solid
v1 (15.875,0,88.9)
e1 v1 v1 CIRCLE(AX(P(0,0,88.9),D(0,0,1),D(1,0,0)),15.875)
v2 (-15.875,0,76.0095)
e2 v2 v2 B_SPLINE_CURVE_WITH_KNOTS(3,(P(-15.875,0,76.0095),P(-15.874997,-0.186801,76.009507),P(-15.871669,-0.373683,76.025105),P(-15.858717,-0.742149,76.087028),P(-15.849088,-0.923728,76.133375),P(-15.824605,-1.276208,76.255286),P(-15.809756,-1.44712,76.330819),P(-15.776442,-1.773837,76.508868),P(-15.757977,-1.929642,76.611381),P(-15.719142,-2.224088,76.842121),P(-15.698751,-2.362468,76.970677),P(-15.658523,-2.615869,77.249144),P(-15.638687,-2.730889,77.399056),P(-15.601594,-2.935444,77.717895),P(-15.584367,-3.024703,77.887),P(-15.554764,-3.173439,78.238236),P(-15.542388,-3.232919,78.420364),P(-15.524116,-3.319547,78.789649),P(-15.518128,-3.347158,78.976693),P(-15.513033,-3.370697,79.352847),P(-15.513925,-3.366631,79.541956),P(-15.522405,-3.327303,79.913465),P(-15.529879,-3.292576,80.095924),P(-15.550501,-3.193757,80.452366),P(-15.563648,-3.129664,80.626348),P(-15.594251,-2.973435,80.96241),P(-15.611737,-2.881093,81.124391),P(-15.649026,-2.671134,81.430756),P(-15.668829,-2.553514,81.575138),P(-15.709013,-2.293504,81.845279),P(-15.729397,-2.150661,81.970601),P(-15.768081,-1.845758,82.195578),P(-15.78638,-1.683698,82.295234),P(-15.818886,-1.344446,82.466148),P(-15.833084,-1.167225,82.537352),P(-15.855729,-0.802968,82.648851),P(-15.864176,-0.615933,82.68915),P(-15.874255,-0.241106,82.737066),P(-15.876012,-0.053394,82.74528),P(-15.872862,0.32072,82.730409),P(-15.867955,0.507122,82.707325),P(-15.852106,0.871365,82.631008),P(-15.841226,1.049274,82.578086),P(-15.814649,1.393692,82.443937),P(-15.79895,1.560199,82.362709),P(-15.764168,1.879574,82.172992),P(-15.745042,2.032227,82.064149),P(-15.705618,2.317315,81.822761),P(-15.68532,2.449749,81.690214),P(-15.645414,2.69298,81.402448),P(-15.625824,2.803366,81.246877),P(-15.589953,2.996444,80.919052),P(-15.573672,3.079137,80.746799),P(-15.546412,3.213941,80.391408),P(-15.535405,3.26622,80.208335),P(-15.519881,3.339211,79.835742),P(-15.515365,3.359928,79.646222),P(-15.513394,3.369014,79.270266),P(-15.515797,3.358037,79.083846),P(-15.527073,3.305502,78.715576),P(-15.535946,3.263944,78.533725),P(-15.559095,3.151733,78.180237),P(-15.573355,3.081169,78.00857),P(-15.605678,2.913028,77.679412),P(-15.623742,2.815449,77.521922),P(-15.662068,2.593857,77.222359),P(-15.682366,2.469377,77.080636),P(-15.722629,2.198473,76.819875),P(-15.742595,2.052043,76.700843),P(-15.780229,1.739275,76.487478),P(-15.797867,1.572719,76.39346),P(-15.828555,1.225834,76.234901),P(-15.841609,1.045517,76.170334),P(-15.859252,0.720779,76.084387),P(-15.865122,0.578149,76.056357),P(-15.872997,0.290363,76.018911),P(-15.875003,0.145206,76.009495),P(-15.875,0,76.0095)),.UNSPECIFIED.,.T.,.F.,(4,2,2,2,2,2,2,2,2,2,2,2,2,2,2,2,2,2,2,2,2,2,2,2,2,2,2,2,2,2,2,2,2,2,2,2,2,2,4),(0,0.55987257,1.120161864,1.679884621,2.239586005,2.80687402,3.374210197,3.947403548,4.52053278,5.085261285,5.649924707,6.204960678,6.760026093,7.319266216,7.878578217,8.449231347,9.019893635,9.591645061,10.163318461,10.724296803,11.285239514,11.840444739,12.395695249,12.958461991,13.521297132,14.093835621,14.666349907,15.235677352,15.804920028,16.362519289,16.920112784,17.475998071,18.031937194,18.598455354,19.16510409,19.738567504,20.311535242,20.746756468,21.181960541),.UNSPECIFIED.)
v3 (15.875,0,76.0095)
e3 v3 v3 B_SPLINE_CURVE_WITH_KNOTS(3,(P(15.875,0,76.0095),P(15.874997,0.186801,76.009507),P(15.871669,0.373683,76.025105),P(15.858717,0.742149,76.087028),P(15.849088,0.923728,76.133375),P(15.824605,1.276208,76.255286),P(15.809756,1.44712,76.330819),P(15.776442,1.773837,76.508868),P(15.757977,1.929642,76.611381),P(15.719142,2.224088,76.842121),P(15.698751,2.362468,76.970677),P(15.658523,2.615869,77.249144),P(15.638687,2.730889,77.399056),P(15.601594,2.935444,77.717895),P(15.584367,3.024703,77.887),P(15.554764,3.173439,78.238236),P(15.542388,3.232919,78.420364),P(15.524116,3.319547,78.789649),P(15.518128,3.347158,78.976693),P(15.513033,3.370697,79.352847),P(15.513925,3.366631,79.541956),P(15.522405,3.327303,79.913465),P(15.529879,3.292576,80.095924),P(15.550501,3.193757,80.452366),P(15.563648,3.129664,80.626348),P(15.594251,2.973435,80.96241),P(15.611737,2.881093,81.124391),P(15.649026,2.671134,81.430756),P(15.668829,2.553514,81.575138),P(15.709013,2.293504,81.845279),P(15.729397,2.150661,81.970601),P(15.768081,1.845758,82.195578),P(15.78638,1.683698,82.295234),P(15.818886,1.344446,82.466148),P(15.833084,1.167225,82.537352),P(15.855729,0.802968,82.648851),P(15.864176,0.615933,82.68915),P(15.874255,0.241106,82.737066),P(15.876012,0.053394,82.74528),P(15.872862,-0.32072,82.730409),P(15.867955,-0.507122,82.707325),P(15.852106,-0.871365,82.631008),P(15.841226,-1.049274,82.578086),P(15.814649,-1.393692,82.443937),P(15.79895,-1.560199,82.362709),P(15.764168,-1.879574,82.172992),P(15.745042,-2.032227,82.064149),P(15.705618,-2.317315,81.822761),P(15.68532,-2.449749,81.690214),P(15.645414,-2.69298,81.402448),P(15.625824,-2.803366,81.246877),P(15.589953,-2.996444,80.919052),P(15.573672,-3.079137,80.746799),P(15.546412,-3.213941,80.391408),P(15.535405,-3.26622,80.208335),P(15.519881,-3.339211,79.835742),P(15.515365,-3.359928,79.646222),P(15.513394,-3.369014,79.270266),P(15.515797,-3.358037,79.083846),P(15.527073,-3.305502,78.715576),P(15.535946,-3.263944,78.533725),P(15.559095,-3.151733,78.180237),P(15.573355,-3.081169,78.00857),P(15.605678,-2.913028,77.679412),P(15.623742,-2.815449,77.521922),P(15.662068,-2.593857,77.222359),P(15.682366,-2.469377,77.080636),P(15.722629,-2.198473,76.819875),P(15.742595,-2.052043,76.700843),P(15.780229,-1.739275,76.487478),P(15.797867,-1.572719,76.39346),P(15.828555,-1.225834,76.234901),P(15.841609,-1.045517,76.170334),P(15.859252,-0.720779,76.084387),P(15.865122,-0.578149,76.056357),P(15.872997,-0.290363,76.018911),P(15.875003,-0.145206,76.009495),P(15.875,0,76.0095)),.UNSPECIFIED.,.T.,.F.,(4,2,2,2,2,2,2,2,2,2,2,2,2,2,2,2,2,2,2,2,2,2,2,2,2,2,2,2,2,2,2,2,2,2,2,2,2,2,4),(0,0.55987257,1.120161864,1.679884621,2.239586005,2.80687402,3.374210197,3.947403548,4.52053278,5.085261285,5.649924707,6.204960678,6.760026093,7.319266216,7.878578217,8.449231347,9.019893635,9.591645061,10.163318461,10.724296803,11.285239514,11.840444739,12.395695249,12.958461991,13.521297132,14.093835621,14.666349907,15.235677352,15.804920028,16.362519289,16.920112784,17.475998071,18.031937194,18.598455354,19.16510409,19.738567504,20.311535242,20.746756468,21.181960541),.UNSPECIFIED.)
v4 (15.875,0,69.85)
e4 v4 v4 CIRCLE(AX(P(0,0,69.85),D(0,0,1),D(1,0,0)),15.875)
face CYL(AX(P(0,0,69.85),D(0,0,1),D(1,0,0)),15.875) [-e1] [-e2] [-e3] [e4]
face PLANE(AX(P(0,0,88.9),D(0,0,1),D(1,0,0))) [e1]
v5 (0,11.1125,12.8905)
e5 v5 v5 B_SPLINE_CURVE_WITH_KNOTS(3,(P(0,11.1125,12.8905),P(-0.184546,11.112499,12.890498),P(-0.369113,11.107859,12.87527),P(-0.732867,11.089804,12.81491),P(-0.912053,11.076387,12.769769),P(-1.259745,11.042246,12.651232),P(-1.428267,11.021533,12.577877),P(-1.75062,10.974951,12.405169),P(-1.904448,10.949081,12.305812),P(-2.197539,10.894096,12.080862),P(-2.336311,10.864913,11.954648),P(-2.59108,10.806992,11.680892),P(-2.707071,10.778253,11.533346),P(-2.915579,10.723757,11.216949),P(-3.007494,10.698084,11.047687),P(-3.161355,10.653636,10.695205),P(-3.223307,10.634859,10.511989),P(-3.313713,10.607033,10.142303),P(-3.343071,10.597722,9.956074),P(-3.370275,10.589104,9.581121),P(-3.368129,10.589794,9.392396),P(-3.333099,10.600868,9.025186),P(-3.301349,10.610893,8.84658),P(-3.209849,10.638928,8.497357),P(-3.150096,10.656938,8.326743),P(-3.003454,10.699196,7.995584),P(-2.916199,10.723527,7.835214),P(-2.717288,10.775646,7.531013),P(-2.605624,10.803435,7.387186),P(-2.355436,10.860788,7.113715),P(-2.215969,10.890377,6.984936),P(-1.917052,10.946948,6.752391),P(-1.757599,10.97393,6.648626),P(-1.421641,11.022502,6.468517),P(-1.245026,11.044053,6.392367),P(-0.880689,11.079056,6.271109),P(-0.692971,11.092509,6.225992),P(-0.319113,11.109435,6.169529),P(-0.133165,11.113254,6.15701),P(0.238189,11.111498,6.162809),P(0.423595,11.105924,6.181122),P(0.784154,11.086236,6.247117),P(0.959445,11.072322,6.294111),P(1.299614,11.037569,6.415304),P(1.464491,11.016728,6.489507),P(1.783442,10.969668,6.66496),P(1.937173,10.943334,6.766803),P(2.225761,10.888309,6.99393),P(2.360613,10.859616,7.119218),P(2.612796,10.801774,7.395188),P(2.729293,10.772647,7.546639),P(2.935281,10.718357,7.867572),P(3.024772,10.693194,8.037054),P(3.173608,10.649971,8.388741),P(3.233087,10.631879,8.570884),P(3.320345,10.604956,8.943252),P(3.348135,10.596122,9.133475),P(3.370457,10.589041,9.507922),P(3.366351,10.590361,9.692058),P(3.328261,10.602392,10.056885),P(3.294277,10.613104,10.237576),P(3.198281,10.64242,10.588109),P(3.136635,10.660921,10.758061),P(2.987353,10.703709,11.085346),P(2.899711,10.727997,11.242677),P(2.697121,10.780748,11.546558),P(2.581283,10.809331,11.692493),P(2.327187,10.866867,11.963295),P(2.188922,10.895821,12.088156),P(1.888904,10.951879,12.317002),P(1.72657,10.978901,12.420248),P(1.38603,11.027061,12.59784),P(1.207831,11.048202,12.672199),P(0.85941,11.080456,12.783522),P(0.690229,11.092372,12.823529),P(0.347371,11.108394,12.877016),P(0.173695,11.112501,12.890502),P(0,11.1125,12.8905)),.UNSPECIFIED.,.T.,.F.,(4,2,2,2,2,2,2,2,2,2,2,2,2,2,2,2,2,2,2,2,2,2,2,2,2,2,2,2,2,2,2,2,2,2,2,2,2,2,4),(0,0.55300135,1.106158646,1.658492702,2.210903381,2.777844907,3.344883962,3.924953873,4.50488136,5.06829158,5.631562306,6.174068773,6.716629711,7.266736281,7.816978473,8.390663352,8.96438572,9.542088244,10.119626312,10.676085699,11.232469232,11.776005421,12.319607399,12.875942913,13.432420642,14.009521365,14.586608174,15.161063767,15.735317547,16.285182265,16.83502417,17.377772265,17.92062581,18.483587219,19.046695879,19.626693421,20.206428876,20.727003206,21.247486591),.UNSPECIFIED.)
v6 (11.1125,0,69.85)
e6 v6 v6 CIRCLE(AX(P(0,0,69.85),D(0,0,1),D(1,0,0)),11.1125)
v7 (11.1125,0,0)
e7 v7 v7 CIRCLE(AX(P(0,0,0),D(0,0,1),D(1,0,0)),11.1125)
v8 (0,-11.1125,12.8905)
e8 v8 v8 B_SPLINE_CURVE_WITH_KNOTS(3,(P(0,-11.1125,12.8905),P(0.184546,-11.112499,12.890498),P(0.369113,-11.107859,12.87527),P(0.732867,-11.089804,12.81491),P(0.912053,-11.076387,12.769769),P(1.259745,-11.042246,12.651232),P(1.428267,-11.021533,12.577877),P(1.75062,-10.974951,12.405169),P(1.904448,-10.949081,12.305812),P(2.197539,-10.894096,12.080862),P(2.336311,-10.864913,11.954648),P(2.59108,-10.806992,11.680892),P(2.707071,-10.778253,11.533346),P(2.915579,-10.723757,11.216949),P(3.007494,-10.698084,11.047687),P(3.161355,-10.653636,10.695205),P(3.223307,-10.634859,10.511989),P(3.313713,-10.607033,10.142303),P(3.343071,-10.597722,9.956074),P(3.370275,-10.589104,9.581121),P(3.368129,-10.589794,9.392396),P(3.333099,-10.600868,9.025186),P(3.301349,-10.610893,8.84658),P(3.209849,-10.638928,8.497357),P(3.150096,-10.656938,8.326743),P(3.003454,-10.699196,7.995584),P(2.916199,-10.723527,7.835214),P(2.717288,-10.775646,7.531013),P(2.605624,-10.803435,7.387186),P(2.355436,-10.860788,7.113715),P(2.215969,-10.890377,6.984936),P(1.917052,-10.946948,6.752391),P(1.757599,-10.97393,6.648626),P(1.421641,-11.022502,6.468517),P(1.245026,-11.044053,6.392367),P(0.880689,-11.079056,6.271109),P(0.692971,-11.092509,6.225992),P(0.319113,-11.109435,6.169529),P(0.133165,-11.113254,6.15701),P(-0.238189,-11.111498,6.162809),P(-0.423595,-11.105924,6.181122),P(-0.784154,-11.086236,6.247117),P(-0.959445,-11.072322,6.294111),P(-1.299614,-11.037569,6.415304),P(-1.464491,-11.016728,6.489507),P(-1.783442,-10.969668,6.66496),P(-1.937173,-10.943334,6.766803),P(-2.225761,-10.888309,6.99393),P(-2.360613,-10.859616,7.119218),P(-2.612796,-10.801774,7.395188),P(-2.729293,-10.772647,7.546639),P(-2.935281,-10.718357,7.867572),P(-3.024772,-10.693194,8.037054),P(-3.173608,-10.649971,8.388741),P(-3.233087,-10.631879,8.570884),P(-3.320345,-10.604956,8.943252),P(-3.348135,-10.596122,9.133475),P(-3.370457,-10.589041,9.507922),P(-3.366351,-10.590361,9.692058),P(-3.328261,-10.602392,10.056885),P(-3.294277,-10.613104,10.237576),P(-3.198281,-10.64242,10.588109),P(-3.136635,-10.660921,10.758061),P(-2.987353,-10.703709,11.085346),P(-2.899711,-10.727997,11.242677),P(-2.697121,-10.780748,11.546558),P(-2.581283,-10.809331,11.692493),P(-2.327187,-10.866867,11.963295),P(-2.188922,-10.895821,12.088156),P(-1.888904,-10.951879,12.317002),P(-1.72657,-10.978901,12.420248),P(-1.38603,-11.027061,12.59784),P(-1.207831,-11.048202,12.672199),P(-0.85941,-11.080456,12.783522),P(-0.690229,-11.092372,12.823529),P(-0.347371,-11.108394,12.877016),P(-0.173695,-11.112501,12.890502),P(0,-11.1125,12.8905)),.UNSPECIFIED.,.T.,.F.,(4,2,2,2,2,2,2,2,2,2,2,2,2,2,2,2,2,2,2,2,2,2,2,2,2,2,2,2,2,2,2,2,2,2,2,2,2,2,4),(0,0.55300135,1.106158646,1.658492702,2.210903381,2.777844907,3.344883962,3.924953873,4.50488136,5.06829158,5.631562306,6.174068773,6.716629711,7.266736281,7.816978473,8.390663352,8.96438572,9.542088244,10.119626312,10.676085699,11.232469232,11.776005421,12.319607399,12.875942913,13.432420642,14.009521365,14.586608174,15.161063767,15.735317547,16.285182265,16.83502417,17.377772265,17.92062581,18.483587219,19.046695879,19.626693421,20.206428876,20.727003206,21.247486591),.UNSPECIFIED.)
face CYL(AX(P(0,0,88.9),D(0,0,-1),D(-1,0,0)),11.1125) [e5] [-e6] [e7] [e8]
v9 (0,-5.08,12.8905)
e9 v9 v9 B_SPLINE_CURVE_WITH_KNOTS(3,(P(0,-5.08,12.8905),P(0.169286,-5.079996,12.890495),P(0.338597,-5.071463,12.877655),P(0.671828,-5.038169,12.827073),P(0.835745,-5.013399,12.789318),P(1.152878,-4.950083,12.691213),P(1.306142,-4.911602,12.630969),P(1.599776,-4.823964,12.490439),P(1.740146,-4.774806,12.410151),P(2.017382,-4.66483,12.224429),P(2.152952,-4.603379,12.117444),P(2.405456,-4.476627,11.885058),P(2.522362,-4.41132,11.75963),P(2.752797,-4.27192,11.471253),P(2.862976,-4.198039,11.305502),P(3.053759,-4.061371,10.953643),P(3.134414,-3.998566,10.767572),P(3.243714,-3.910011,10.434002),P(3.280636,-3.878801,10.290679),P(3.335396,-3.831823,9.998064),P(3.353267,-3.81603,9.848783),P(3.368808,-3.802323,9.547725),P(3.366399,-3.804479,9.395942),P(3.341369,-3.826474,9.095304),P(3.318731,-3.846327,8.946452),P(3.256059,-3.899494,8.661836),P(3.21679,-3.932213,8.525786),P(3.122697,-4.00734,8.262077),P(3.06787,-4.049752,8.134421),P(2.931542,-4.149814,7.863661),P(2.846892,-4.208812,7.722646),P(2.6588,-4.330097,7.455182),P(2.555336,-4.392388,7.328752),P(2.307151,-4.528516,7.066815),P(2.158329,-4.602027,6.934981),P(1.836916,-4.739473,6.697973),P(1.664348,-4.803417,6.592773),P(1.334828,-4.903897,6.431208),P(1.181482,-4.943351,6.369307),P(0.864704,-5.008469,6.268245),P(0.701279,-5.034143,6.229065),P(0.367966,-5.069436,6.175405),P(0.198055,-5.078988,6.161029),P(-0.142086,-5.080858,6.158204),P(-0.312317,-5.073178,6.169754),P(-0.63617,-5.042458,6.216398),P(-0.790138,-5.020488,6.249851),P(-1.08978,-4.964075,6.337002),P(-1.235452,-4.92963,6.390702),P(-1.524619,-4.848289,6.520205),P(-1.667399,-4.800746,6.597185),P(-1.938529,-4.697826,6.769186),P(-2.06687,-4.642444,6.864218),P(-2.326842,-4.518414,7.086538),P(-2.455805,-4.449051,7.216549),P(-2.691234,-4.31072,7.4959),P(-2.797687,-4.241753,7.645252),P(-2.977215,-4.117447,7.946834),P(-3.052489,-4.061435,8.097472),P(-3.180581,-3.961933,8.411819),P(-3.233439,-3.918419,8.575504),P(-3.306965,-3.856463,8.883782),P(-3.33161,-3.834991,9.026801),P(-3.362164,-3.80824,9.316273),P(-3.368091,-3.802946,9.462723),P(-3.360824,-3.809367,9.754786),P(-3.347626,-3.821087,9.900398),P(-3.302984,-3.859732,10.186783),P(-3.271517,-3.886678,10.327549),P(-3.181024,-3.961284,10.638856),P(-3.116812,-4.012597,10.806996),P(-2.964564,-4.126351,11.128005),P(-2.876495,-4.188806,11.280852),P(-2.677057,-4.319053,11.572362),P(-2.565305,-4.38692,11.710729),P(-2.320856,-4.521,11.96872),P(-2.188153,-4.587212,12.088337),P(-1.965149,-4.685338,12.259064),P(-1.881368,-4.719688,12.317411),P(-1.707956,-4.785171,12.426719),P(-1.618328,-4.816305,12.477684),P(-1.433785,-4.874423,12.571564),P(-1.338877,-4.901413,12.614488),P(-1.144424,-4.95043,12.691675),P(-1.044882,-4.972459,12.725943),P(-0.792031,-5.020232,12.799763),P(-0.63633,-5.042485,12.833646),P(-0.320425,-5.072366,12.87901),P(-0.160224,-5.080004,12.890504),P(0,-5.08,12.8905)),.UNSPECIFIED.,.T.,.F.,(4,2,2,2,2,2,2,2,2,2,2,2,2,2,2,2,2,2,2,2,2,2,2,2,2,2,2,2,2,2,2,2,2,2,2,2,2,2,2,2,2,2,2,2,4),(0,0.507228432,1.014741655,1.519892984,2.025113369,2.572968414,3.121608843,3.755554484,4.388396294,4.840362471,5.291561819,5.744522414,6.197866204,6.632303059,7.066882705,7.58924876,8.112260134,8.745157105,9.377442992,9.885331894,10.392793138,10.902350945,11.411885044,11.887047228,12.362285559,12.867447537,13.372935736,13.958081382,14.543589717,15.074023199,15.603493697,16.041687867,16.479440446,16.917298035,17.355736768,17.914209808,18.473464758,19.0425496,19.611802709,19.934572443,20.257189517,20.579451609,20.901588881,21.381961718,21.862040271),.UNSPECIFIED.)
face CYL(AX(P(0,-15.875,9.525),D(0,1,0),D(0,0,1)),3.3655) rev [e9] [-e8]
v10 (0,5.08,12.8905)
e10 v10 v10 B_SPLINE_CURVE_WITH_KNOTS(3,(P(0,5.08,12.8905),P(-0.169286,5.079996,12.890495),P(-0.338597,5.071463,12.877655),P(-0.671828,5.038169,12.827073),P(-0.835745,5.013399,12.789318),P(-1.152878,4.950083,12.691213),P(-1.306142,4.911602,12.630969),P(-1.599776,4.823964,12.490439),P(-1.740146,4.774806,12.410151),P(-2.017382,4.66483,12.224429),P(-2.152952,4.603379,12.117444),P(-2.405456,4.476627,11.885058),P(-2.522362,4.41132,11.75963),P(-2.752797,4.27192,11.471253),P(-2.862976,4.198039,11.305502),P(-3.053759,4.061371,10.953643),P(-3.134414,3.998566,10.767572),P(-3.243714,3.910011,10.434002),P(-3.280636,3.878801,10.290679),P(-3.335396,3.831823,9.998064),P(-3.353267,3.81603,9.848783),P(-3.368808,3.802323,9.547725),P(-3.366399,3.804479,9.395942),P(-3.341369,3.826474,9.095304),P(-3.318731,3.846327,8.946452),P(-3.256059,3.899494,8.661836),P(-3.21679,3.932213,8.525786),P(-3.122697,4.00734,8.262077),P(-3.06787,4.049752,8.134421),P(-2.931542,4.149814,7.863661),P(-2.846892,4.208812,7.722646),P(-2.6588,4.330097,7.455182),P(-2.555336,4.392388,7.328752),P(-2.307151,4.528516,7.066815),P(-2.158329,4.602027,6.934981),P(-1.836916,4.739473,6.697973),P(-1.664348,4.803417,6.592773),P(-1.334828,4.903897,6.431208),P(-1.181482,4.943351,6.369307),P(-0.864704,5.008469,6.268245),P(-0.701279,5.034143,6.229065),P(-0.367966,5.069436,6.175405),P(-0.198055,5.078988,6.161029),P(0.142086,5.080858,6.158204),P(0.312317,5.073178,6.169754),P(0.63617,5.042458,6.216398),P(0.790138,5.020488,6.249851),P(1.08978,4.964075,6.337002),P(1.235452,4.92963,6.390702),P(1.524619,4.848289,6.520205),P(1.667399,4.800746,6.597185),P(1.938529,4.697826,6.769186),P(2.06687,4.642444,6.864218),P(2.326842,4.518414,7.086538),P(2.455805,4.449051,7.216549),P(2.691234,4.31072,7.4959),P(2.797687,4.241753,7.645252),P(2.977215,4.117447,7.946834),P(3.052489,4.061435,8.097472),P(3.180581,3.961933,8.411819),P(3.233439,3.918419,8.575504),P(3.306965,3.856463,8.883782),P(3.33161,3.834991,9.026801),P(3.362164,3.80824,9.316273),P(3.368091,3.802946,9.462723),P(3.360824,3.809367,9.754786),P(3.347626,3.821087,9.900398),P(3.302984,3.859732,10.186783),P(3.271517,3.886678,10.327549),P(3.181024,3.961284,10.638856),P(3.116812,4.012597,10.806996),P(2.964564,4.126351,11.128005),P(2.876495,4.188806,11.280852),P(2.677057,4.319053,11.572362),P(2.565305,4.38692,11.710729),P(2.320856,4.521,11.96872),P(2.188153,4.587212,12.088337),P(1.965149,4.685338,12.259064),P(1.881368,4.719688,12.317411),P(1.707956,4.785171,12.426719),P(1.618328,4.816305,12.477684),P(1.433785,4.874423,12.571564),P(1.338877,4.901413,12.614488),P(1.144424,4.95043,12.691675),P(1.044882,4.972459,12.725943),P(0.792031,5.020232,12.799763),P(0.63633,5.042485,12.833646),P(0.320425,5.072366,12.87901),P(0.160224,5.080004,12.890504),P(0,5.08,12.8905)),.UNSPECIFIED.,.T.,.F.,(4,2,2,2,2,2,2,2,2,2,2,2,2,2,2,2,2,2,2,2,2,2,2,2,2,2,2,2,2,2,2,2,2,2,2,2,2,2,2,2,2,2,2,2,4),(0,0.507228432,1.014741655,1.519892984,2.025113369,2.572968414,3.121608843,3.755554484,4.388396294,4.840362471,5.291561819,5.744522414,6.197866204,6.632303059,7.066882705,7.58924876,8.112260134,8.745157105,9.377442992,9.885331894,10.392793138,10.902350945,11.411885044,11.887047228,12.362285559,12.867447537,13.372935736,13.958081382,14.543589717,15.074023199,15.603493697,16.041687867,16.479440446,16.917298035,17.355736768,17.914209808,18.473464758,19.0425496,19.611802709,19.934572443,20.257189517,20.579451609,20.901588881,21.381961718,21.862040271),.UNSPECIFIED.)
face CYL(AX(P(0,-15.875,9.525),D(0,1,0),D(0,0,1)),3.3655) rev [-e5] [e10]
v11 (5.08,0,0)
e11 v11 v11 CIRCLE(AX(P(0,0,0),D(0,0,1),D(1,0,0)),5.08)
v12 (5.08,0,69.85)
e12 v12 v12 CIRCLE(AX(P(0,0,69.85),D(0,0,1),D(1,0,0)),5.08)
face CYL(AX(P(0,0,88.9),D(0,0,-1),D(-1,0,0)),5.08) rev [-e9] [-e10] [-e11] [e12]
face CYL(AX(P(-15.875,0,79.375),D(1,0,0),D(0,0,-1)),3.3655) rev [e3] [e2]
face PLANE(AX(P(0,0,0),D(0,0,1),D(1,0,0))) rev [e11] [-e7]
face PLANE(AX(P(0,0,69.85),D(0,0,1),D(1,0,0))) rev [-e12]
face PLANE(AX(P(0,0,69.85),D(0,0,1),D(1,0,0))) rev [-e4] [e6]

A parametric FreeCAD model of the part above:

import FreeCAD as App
import Part
import Sketcher
from FreeCAD import Vector
Q = App.Units.Quantity

doc = App.newDocument("Part")
body = doc.addObject("PartDesign::Body", "Body")

# Sketch on XY plane
sketch1 = body.newObject("Sketcher::SketchObject", "Sketch")
sketch1.AttachmentSupport = (doc.getObject("XY_Plane"), [""])
sketch1.MapMode = "FlatFace"
sketch1.addGeometry(Part.Circle(Vector(0, 0, 0), Vector(0, 0, 1), 11), False)
sketch1.addGeometry(Part.Circle(Vector(0, 0, 0), Vector(0, 0, 1), 5), False)
sketch1.addConstraint(Sketcher.Constraint("Coincident", 0, 3, -1, 1))
sketch1.addConstraint(Sketcher.Constraint("Coincident", 1, 3, -1, 1))
sketch1.addConstraint(Sketcher.Constraint("Diameter", 1, Q("0.4 in")))
sketch1.addConstraint(Sketcher.Constraint("Diameter", 0, Q("0.875 in")))
pad1 = body.newObject("PartDesign::Pad", "Pad")
pad1.Profile = sketch1
pad1.Length = Q("3.5 in")

# Sketch on XY plane
sketch2 = body.newObject("Sketcher::SketchObject", "Sketch001")
sketch2.AttachmentSupport = (doc.getObject("XY_Plane"), [""])
sketch2.MapMode = "FlatFace"
sketch2.AttachmentOffset = App.Placement(Vector(0, 0, 3.5 * 25.4), App.Rotation())
sketch2.addGeometry(Part.Circle(Vector(0, 0, 0), Vector(0, 0, 1), 16), False)
sketch2.addConstraint(Sketcher.Constraint("Coincident", 0, 3, -1, 1))
sketch2.addConstraint(Sketcher.Constraint("Diameter", 0, Q("1.25 in")))
pad2 = body.newObject("PartDesign::Pad", "Pad001")
pad2.Profile = sketch2
pad2.Length = Q("0.75 in")
pad2.Reversed = True

# Sketch on YZ plane
sketch3 = body.newObject("Sketcher::SketchObject", "Sketch002")
sketch3.AttachmentSupport = (doc.getObject("YZ_Plane"), [""])
sketch3.MapMode = "FlatFace"
sketch3.addGeometry(Part.Circle(Vector(0, 79.4, 0), Vector(0, 0, 1), 3.4), False)
sketch3.addConstraint(Sketcher.Constraint("PointOnObject", 0, 3, -2))
sketch3.addConstraint(Sketcher.Constraint("Diameter", 0, Q("0.265 in")))
sketch3.addConstraint(Sketcher.Constraint("DistanceY", -1, 1, 0, 3, Q("3.125 in")))
pocket1 = body.newObject("PartDesign::Pocket", "Pocket")
pocket1.Profile = sketch3
pocket1.Type = "ThroughAll"
pocket1.Midplane = True

# Sketch on XZ plane
sketch4 = body.newObject("Sketcher::SketchObject", "Sketch003")
sketch4.AttachmentSupport = (doc.getObject("XZ_Plane"), [""])
sketch4.MapMode = "FlatFace"
sketch4.addGeometry(Part.Circle(Vector(0, 9.5, 0), Vector(0, 0, 1), 3.4), False)
sketch4.addConstraint(Sketcher.Constraint("PointOnObject", 0, 3, -2))
sketch4.addConstraint(Sketcher.Constraint("Diameter", 0, Q("0.265 in")))
sketch4.addConstraint(Sketcher.Constraint("DistanceY", -1, 1, 0, 3, Q("0.375 in")))
pocket2 = body.newObject("PartDesign::Pocket", "Pocket001")
pocket2.Profile = sketch4
pocket2.Type = "ThroughAll"
pocket2.Midplane = True

doc.recompute()
